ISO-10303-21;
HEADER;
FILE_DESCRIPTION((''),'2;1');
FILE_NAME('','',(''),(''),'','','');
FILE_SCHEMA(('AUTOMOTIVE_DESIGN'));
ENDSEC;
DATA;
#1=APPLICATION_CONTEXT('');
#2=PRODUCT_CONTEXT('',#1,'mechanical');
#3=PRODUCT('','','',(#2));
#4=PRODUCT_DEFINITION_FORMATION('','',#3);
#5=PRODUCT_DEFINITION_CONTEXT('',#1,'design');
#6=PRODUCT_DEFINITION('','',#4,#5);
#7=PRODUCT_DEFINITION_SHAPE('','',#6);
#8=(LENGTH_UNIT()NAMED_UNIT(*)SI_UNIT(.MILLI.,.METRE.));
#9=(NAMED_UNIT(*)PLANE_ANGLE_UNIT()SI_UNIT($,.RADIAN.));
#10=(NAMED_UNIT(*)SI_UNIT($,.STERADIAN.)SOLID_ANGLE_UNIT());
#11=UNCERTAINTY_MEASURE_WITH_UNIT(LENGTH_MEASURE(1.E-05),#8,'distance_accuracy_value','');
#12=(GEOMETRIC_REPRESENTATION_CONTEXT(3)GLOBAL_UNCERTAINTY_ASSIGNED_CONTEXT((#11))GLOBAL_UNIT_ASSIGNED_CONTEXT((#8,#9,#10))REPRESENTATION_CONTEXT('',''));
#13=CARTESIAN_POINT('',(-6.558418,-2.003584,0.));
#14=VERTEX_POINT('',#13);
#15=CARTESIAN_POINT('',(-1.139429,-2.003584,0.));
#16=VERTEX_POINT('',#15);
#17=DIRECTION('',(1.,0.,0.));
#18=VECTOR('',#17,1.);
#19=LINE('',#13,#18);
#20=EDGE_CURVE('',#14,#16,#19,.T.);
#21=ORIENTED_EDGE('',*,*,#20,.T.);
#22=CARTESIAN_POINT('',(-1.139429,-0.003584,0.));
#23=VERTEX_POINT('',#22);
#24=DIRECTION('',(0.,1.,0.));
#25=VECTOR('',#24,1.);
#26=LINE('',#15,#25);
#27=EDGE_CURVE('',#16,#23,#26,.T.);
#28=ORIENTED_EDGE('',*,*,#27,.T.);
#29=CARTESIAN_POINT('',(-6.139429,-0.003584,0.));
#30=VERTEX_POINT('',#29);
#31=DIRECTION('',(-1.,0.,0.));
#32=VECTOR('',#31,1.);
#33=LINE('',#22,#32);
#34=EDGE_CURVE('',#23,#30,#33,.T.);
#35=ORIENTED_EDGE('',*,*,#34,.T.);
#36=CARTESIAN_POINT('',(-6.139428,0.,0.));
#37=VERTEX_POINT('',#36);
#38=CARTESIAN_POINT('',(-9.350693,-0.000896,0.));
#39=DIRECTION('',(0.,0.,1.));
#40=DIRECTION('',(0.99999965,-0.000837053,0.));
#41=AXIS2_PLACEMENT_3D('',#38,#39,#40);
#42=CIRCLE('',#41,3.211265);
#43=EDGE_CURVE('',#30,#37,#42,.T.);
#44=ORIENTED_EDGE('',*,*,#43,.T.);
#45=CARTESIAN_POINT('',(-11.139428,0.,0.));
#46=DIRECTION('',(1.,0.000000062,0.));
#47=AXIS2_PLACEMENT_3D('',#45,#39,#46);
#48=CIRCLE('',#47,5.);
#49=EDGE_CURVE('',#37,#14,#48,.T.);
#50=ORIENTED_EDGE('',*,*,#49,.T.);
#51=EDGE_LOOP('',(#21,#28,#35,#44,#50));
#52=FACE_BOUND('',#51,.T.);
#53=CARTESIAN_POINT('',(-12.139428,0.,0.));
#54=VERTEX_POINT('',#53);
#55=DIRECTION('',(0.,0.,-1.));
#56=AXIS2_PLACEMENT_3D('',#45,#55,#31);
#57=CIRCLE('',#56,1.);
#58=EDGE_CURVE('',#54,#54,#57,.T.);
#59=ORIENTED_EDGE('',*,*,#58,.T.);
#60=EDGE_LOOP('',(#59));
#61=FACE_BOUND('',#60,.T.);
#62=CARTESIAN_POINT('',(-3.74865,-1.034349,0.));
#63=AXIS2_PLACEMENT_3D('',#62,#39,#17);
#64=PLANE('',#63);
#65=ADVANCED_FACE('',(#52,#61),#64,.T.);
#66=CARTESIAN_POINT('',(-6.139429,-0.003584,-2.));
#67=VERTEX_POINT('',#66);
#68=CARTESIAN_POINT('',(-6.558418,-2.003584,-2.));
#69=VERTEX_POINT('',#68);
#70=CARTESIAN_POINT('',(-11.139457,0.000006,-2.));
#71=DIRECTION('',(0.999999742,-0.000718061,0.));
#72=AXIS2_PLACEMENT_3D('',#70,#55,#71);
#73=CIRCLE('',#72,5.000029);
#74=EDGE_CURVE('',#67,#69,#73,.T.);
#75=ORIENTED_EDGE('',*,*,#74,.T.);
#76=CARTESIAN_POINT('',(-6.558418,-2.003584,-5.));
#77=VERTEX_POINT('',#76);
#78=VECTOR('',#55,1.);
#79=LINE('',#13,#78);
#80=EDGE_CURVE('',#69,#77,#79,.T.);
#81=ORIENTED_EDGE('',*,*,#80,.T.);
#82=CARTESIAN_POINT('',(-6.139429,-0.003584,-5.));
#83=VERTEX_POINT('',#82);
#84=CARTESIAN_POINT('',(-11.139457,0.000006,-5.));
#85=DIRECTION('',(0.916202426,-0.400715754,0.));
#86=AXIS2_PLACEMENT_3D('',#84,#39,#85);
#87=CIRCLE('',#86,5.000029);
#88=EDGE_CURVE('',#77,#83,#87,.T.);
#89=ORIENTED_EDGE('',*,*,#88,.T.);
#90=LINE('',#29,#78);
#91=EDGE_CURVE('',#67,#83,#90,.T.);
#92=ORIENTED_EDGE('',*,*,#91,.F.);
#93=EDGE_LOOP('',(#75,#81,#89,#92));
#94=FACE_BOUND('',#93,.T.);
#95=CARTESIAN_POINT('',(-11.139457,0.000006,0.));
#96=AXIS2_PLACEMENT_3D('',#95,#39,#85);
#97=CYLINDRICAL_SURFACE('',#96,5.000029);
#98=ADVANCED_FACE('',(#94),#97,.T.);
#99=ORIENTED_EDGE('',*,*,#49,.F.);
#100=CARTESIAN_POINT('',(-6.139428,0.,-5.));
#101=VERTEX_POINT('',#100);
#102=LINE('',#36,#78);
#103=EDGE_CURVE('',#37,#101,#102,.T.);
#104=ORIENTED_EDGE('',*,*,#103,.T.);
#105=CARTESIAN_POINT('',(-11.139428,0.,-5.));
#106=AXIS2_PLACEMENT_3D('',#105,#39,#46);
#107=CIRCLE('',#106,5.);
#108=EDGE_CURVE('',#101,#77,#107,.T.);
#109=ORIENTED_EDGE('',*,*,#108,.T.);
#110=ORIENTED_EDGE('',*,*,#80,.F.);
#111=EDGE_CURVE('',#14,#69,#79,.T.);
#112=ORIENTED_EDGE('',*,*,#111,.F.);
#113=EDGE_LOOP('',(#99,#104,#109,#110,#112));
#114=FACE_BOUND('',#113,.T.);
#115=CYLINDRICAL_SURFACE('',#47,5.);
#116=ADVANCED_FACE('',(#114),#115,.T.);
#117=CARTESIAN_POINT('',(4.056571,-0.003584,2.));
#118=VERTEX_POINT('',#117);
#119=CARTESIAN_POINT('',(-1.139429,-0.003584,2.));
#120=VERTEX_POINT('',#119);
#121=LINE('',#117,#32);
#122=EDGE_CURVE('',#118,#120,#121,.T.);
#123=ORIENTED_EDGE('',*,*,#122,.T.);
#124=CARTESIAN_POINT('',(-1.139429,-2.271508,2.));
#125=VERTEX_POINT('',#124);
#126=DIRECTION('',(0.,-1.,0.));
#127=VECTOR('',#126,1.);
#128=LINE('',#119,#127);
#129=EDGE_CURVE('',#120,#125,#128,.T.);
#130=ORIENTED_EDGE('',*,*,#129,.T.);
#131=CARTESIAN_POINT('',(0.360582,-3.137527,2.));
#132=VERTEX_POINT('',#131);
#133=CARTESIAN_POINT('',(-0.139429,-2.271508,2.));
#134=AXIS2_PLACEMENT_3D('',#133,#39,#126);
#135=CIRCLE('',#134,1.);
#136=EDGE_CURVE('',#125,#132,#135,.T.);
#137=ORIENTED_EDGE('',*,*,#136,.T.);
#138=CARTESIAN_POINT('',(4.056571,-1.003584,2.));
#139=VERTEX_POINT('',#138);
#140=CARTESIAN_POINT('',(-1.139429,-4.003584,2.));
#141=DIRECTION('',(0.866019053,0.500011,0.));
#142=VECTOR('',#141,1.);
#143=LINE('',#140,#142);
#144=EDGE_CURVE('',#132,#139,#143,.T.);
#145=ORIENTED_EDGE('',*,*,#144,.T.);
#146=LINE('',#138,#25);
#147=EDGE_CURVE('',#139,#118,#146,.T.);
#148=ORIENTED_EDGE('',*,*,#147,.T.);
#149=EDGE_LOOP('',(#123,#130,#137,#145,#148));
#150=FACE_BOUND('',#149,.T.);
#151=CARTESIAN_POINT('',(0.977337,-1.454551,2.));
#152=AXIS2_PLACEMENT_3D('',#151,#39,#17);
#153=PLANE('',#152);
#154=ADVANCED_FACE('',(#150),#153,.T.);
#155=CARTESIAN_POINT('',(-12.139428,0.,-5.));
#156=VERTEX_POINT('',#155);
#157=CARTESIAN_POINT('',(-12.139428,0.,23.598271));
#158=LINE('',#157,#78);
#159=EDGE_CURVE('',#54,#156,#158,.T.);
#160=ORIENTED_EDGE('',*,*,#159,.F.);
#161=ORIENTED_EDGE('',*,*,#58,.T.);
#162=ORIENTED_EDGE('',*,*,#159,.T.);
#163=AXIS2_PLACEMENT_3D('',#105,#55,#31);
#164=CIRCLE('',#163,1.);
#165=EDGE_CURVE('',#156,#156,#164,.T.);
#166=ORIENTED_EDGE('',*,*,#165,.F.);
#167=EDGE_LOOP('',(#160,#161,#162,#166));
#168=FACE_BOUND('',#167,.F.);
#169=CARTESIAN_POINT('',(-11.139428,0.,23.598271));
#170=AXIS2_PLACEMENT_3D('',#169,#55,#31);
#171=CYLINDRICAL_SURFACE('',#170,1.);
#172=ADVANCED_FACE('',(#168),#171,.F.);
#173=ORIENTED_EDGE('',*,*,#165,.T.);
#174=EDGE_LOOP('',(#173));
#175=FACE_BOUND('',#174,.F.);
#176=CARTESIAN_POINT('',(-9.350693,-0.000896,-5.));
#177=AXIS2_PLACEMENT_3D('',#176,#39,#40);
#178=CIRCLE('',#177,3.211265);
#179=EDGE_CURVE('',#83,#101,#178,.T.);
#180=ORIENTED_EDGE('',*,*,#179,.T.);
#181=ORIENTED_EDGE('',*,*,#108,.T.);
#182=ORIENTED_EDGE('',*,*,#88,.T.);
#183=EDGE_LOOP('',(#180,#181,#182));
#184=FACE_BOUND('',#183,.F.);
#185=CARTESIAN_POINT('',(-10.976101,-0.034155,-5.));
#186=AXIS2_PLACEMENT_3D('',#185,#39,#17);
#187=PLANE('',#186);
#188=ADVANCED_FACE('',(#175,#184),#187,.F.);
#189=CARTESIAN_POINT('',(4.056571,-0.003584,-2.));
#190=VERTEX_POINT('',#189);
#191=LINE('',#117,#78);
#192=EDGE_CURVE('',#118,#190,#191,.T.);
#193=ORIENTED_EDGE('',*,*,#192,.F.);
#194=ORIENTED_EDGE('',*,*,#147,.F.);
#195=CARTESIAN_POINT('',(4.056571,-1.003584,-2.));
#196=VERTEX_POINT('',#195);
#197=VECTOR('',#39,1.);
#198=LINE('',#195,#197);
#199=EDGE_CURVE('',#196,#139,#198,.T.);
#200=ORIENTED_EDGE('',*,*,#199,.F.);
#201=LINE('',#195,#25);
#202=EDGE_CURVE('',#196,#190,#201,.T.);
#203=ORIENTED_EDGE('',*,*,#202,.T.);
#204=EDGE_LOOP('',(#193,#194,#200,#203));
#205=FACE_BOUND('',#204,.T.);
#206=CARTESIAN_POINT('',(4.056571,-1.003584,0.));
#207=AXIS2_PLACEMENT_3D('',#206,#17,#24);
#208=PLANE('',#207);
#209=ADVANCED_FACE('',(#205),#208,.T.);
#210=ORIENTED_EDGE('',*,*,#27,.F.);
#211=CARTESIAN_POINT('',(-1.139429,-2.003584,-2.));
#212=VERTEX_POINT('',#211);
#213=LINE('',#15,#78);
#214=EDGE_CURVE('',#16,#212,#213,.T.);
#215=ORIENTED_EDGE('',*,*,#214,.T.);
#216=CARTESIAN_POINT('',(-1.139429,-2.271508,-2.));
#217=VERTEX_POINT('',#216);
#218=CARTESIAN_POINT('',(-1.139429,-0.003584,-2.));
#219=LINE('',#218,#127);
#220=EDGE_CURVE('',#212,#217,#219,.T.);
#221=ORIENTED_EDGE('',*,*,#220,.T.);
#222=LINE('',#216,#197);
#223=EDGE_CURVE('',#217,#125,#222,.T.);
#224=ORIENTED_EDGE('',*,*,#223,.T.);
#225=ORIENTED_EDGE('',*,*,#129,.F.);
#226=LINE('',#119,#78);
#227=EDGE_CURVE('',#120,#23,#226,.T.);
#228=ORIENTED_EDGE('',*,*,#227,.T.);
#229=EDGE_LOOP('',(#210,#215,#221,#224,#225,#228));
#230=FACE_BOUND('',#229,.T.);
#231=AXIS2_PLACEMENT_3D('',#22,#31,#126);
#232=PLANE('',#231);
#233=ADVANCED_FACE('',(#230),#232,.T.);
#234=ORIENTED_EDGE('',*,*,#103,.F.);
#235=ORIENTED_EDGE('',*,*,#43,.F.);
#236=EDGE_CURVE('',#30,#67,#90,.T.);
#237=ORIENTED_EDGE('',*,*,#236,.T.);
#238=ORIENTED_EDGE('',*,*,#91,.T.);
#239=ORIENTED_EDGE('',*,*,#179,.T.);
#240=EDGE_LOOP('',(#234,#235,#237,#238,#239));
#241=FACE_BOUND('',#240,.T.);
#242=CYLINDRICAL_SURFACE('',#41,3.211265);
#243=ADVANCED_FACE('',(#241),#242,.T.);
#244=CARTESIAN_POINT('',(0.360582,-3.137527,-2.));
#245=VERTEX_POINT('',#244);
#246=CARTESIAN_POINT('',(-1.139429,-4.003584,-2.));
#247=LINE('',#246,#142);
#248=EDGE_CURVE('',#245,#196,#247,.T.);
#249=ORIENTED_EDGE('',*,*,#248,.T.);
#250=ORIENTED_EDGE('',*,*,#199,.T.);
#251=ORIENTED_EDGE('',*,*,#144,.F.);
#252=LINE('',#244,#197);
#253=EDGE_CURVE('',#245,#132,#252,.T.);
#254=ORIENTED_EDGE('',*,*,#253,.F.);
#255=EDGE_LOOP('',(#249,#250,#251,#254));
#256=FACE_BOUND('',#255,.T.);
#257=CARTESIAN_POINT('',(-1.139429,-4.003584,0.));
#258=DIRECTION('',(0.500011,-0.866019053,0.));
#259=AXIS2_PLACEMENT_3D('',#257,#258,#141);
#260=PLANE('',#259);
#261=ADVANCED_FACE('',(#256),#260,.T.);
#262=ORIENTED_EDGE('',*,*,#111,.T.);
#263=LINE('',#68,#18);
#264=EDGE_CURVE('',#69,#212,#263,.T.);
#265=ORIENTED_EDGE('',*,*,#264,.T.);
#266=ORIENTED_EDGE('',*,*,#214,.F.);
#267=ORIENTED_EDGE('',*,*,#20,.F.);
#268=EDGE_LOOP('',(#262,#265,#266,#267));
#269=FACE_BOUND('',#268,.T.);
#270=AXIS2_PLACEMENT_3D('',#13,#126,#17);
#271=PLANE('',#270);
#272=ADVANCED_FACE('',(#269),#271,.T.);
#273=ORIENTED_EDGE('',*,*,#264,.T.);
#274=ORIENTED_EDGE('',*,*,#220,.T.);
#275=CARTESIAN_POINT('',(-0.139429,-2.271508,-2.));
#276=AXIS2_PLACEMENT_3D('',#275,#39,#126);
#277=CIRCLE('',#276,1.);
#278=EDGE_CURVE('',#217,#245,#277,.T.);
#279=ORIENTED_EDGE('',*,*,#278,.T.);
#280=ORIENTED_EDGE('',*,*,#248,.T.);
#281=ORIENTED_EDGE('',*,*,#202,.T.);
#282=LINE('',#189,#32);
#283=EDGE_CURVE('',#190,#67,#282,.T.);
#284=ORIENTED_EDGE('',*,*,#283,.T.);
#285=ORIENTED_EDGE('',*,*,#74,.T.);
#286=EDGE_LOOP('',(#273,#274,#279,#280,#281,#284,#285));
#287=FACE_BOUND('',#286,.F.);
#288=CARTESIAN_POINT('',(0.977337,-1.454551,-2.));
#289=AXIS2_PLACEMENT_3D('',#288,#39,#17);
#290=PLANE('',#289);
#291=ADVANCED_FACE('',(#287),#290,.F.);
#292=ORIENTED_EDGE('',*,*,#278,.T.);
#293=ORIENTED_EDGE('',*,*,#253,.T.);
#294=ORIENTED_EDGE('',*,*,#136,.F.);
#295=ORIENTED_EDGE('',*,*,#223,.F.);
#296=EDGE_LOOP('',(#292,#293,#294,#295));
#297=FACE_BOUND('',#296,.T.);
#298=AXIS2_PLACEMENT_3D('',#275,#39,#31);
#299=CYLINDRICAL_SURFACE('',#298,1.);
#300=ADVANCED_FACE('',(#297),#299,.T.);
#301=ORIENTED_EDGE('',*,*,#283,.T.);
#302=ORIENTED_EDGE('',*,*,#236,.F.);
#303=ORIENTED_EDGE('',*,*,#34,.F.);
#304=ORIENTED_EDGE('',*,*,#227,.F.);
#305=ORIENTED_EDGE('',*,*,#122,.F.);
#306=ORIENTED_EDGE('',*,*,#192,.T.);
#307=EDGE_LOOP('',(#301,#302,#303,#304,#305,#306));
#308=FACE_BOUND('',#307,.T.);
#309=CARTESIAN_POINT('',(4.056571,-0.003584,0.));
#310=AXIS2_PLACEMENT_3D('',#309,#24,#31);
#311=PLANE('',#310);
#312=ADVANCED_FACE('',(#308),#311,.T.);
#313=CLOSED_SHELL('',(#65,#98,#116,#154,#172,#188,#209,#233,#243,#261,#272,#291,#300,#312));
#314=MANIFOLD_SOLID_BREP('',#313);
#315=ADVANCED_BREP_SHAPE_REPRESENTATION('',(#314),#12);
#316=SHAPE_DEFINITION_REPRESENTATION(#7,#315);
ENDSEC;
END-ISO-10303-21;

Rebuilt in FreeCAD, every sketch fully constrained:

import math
import FreeCAD as App
import Part
import Sketcher

V = App.Vector


def edges_at(feature, points):
    """Names of the edges that pass closest to the given points."""
    edges = feature.Shape.Edges
    near = lambda p: min(range(len(edges)), key=lambda i: edges[i].distToShape(Part.Vertex(*p))[0])
    return sorted({f"Edge{near(p) + 1}" for p in points})


def add_polygon(sketch, points):
    """Adds a closed chain of lines whose ends are joined by coincident constraints."""
    first, n = sketch.GeometryCount, len(points)
    for a, b in zip(points, points[1:] + points[:1]):
        sketch.addGeometry(Part.LineSegment(App.Vector(*a, 0), App.Vector(*b, 0)), False)
    for i in range(n):
        sketch.addConstraint(Sketcher.Constraint("Coincident", first + i, 2, first + (i + 1) % n, 1))

doc = App.newDocument("Part")
body = doc.addObject("PartDesign::Body", "Body")

# Sketch on XY plane
sketch1 = body.newObject("Sketcher::SketchObject", "Sketch")
sketch1.AttachmentSupport = (doc.getObject("XY_Plane"), [""])
sketch1.MapMode = "FlatFace"
sketch1.addGeometry(Part.ArcOfCircle(Part.Circle(V(-9.350692, -0.000896, 0), V(0, 0, 1), 3.211265), math.radians(-0.04796), math.radians(0.015987)), False)
sketch1.addGeometry(Part.ArcOfCircle(Part.Circle(V(-11.139428, 0, 0), V(0, 0, 1), 5), math.radians(0.000004), math.radians(336.377008)), False)
sketch1.addGeometry(Part.ArcOfCircle(Part.Circle(V(-11.139457, 0.000006, 0), V(0, 0, 1), 5.000029), math.radians(-23.622931), math.radians(-0.041142)), False)
sketch1.addConstraint(Sketcher.Constraint("Coincident", 0, 2, 1, 1))
sketch1.addConstraint(Sketcher.Constraint("Coincident", 1, 2, 2, 1))
sketch1.addConstraint(Sketcher.Constraint("Coincident", 2, 2, 0, 1))
sketch1.addConstraint(Sketcher.Constraint("PointOnObject", 1, 3, -1))
sketch1.addConstraint(Sketcher.Constraint("PointOnObject", 0, 2, -1))
sketch1.addConstraint(Sketcher.Constraint("Radius", 1, 5.0))
sketch1.addConstraint(Sketcher.Constraint("DistanceY", 1, 2, 2, 2, 2.0))
sketch1.addConstraint(Sketcher.Constraint("Radius", 2, 5.000029))
sketch1.addConstraint(Sketcher.Constraint("Radius", 0, 3.211265))
sketch1.addConstraint(Sketcher.Constraint("DistanceX", 1, 3, -1, 1, 11.139428))
sketch1.addConstraint(Sketcher.Constraint("DistanceX", 1, 2, 0, 2, 0.41899))
sketch1.addConstraint(Sketcher.Constraint("DistanceY", 1, 2, 0, 3, 2.002688))
pad1 = body.newObject("PartDesign::Pad", "Pad")
pad1.Profile = sketch1
pad1.Length = 5
pad1.Reversed = True

# Sketch on XY plane
sketch2 = body.newObject("Sketcher::SketchObject", "Sketch001")
sketch2.AttachmentSupport = (doc.getObject("XY_Plane"), [""])
sketch2.MapMode = "FlatFace"
sketch2.addGeometry(Part.ArcOfCircle(Part.Circle(V(-11.1, 0, 0), V(0, 0, 1), 5), math.radians(-24), math.radians(0)), False)
sketch2.addGeometry(Part.LineSegment(V(-6.6, -2, 0), V(-1.1, -2, 0)), False)
sketch2.addGeometry(Part.LineSegment(V(-1.1, -2, 0), V(-1.1, 0, 0)), False)
sketch2.addGeometry(Part.LineSegment(V(-1.1, 0, 0), V(-6.1, 0, 0)), False)
sketch2.addConstraint(Sketcher.Constraint("Coincident", 0, 1, 1, 1))
sketch2.addConstraint(Sketcher.Constraint("Coincident", 1, 2, 2, 1))
sketch2.addConstraint(Sketcher.Constraint("Coincident", 2, 2, 3, 1))
sketch2.addConstraint(Sketcher.Constraint("Coincident", 3, 2, 0, 2))
sketch2.addConstraint(Sketcher.Constraint("Horizontal", 1))
sketch2.addConstraint(Sketcher.Constraint("Vertical", 2))
sketch2.addConstraint(Sketcher.Constraint("Horizontal", 3))
sketch2.addConstraint(Sketcher.Constraint("DistanceX", 3, 2, 3, 1, 5.0))
sketch2.addConstraint(Sketcher.Constraint("DistanceY", 2, 1, 2, 2, 2.0))
sketch2.addConstraint(Sketcher.Constraint("Radius", 0, 5.000029))
sketch2.addConstraint(Sketcher.Constraint("DistanceX", 1, 1, 1, 2, 5.418989))
sketch2.addConstraint(Sketcher.Constraint("DistanceX", 0, 1, -1, 1, 6.558418))
sketch2.addConstraint(Sketcher.Constraint("DistanceY", 0, 1, -1, 1, 2.003584))
pad2 = body.newObject("PartDesign::Pad", "Pad001")
pad2.Profile = sketch2
pad2.Length = 2
pad2.Reversed = True

# Sketch on XY plane
sketch3 = body.newObject("Sketcher::SketchObject", "Sketch002")
sketch3.AttachmentSupport = (doc.getObject("XY_Plane"), [""])
sketch3.MapMode = "FlatFace"
add_polygon(sketch3, [(-1.1, 0), (-1.1, -4), (4.1, -1), (4.1, 0)])  # lines 0-3
sketch3.addConstraint(Sketcher.Constraint("Vertical", 0))
sketch3.addConstraint(Sketcher.Constraint("Vertical", 2))
sketch3.addConstraint(Sketcher.Constraint("Horizontal", 3))
sketch3.addConstraint(Sketcher.Constraint("DistanceY", 0, 2, 0, 1, 4.0))
sketch3.addConstraint(Sketcher.Constraint("DistanceY", 2, 1, 2, 2, 1.0))
sketch3.addConstraint(Sketcher.Constraint("DistanceX", 3, 2, 3, 1, 5.196))
sketch3.addConstraint(Sketcher.Constraint("DistanceX", 0, 2, -1, 1, 1.139429))
sketch3.addConstraint(Sketcher.Constraint("DistanceY", 0, 2, -1, 1, 4.003584))
pad3 = body.newObject("PartDesign::Pad", "Pad002")
pad3.Profile = sketch3
pad3.Length = 4
pad3.Midplane = True
doc.recompute()

fillet = body.newObject("PartDesign::Fillet", "Fillet")
fillet.Base = (pad3, edges_at(pad3, [(-1.139, -4.004, 0)]))
fillet.Radius = 1

# Sketch on XY plane
sketch4 = body.newObject("Sketcher::SketchObject", "Sketch003")
sketch4.AttachmentSupport = (doc.getObject("XY_Plane"), [""])
sketch4.MapMode = "FlatFace"
sketch4.addGeometry(Part.Circle(V(-11.1, 0, 0), V(0, 0, 1), 1), False)
sketch4.addConstraint(Sketcher.Constraint("PointOnObject", 0, 3, -1))
sketch4.addConstraint(Sketcher.Constraint("Diameter", 0, 2.0))
sketch4.addConstraint(Sketcher.Constraint("DistanceX", 0, 3, -1, 1, 11.139428))
doc.recompute()
hole = body.newObject("PartDesign::Hole", "Hole")
hole.Profile = sketch4
hole.ThreadType = "None"
hole.Diameter = 2
hole.DepthType = "ThroughAll"

doc.recompute()
